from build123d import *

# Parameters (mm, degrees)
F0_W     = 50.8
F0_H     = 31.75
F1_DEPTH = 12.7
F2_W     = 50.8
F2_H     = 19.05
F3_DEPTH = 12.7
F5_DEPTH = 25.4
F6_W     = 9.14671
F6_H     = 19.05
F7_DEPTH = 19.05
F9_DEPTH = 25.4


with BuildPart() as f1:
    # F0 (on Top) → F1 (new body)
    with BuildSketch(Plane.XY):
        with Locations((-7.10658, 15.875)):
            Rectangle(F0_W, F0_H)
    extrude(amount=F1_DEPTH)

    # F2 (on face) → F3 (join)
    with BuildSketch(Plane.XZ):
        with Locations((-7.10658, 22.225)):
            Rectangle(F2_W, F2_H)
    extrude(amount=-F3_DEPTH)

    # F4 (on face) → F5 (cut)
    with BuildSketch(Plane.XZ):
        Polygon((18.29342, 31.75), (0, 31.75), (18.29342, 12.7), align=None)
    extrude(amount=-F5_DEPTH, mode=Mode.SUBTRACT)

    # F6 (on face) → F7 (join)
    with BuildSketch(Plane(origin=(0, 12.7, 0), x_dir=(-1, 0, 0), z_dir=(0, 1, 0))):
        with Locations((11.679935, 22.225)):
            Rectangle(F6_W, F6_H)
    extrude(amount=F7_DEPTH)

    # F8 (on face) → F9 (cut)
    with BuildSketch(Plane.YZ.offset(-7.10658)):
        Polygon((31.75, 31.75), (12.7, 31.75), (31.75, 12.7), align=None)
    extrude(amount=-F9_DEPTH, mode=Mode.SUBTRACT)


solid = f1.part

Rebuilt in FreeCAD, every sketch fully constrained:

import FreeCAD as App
import Part
import Sketcher

V = App.Vector
Q = App.Units.Quantity

doc = App.newDocument("Part")
body = doc.addObject("PartDesign::Body", "Body")

# Sketch on XY plane
sketch1 = doc.addObject("Sketcher::SketchObject", "Sketch")
body.addObject(sketch1)
sketch1.AttachmentSupport = (doc.XY_Plane, [""])
sketch1.MapMode = "FlatFace"
sketch1.addGeometry(Part.LineSegment(V(-33, 32, 0), V(-33, 0, 0)), False)
sketch1.addGeometry(Part.LineSegment(V(-33, 0, 0), V(18, 0, 0)), False)
sketch1.addGeometry(Part.LineSegment(V(18, 0, 0), V(18, 32, 0)), False)
sketch1.addGeometry(Part.LineSegment(V(18, 32, 0), V(-33, 32, 0)), False)
sketch1.addConstraint(Sketcher.Constraint("Coincident", 0, 2, 1, 1))
sketch1.addConstraint(Sketcher.Constraint("Coincident", 1, 2, 2, 1))
sketch1.addConstraint(Sketcher.Constraint("Coincident", 2, 2, 3, 1))
sketch1.addConstraint(Sketcher.Constraint("Coincident", 3, 2, 0, 1))
sketch1.addConstraint(Sketcher.Constraint("Vertical", 0))
sketch1.addConstraint(Sketcher.Constraint("Horizontal", 1))
sketch1.addConstraint(Sketcher.Constraint("Vertical", 2))
sketch1.addConstraint(Sketcher.Constraint("Horizontal", 3))
sketch1.addConstraint(Sketcher.Constraint("PointOnObject", 0, 2, -1))
sketch1.addConstraint(Sketcher.Constraint("DistanceX", 1, 1, 1, 2, Q("2 in")))
sketch1.addConstraint(Sketcher.Constraint("DistanceY", 0, 2, 0, 1, Q("1.25 in")))
sketch1.addConstraint(Sketcher.Constraint("DistanceX", 0, 2, -1, 1, Q("32.50658 mm")))
pad1 = doc.addObject("PartDesign::Pad", "Pad")
body.addObject(pad1)
pad1.Profile = sketch1
pad1.Length = Q("0.5 in")

# Sketch on XZ plane
sketch2 = doc.addObject("Sketcher::SketchObject", "Sketch001")
body.addObject(sketch2)
sketch2.AttachmentSupport = (doc.XZ_Plane, [""])
sketch2.MapMode = "FlatFace"
sketch2.addGeometry(Part.LineSegment(V(-33, 32, 0), V(-33, 13, 0)), False)
sketch2.addGeometry(Part.LineSegment(V(-33, 13, 0), V(18, 13, 0)), False)
sketch2.addGeometry(Part.LineSegment(V(18, 13, 0), V(18, 32, 0)), False)
sketch2.addGeometry(Part.LineSegment(V(18, 32, 0), V(-33, 32, 0)), False)
sketch2.addConstraint(Sketcher.Constraint("Coincident", 0, 2, 1, 1))
sketch2.addConstraint(Sketcher.Constraint("Coincident", 1, 2, 2, 1))
sketch2.addConstraint(Sketcher.Constraint("Coincident", 2, 2, 3, 1))
sketch2.addConstraint(Sketcher.Constraint("Coincident", 3, 2, 0, 1))
sketch2.addConstraint(Sketcher.Constraint("Vertical", 0))
sketch2.addConstraint(Sketcher.Constraint("Horizontal", 1))
sketch2.addConstraint(Sketcher.Constraint("Vertical", 2))
sketch2.addConstraint(Sketcher.Constraint("Horizontal", 3))
sketch2.addConstraint(Sketcher.Constraint("DistanceX", 1, 1, 1, 2, Q("2 in")))
sketch2.addConstraint(Sketcher.Constraint("DistanceY", 0, 2, 0, 1, Q("0.75 in")))
sketch2.addConstraint(Sketcher.Constraint("DistanceY", -1, 1, 0, 2, Q("0.5 in")))
sketch2.addConstraint(Sketcher.Constraint("DistanceX", 0, 2, -1, 1, Q("32.50658 mm")))
pad2 = doc.addObject("PartDesign::Pad", "Pad001")
body.addObject(pad2)
pad2.Profile = sketch2
pad2.Length = Q("0.5 in")
pad2.Reversed = True

# Sketch on XZ plane
sketch3 = doc.addObject("Sketcher::SketchObject", "Sketch002")
body.addObject(sketch3)
sketch3.AttachmentSupport = (doc.XZ_Plane, [""])
sketch3.MapMode = "FlatFace"
sketch3.addGeometry(Part.LineSegment(V(18, 32, 0), V(0, 32, 0)), False)
sketch3.addGeometry(Part.LineSegment(V(0, 32, 0), V(18, 13, 0)), False)
sketch3.addGeometry(Part.LineSegment(V(18, 13, 0), V(18, 32, 0)), False)
sketch3.addConstraint(Sketcher.Constraint("Coincident", 0, 2, 1, 1))
sketch3.addConstraint(Sketcher.Constraint("Coincident", 1, 2, 2, 1))
sketch3.addConstraint(Sketcher.Constraint("Coincident", 2, 2, 0, 1))
sketch3.addConstraint(Sketcher.Constraint("Horizontal", 0))
sketch3.addConstraint(Sketcher.Constraint("Vertical", 2))
sketch3.addConstraint(Sketcher.Constraint("PointOnObject", 0, 2, -2))
sketch3.addConstraint(Sketcher.Constraint("DistanceY", 2, 1, 2, 2, Q("0.75 in")))
sketch3.addConstraint(Sketcher.Constraint("DistanceY", -1, 1, 1, 2, Q("0.5 in")))
sketch3.addConstraint(Sketcher.Constraint("DistanceX", 0, 2, 0, 1, Q("18.29342 mm")))
pocket1 = doc.addObject("PartDesign::Pocket", "Pocket")
body.addObject(pocket1)
pocket1.Profile = sketch3
pocket1.Length = Q("1 in")

# Sketch on XZ plane
sketch4 = doc.addObject("Sketcher::SketchObject", "Sketch003")
body.addObject(sketch4)
sketch4.AttachmentSupport = (doc.XZ_Plane, [""])
sketch4.MapMode = "FlatFace"
sketch4.AttachmentOffset = App.Placement(V(0, 0, -0.5 * 25.4), App.Rotation())
sketch4.addGeometry(Part.LineSegment(V(-7, 32, 0), V(-7, 13, 0)), False)
sketch4.addGeometry(Part.LineSegment(V(-7, 13, 0), V(-16, 13, 0)), False)
sketch4.addGeometry(Part.LineSegment(V(-16, 13, 0), V(-16, 32, 0)), False)
sketch4.addGeometry(Part.LineSegment(V(-16, 32, 0), V(-7, 32, 0)), False)
sketch4.addConstraint(Sketcher.Constraint("Coincident", 0, 2, 1, 1))
sketch4.addConstraint(Sketcher.Constraint("Coincident", 1, 2, 2, 1))
sketch4.addConstraint(Sketcher.Constraint("Coincident", 2, 2, 3, 1))
sketch4.addConstraint(Sketcher.Constraint("Coincident", 3, 2, 0, 1))
sketch4.addConstraint(Sketcher.Constraint("Vertical", 0))
sketch4.addConstraint(Sketcher.Constraint("Horizontal", 1))
sketch4.addConstraint(Sketcher.Constraint("Vertical", 2))
sketch4.addConstraint(Sketcher.Constraint("Horizontal", 3))
sketch4.addConstraint(Sketcher.Constraint("DistanceY", 0, 2, 0, 1, Q("0.75 in")))
sketch4.addConstraint(Sketcher.Constraint("DistanceY", -1, 1, 0, 2, Q("0.5 in")))
sketch4.addConstraint(Sketcher.Constraint("DistanceX", 1, 2, 1, 1, Q("9.14671 mm")))
sketch4.addConstraint(Sketcher.Constraint("DistanceX", 0, 2, -1, 1, Q("7.10658 mm")))
pad3 = doc.addObject("PartDesign::Pad", "Pad002")
body.addObject(pad3)
pad3.Profile = sketch4
pad3.Length = Q("0.75 in")
pad3.Reversed = True

# Sketch on YZ plane
sketch5 = doc.addObject("Sketcher::SketchObject", "Sketch004")
body.addObject(sketch5)
sketch5.AttachmentSupport = (doc.YZ_Plane, [""])
sketch5.MapMode = "FlatFace"
sketch5.AttachmentOffset = App.Placement(V(0, 0, -7.10658), App.Rotation())
sketch5.addGeometry(Part.LineSegment(V(32, 32, 0), V(13, 32, 0)), False)
sketch5.addGeometry(Part.LineSegment(V(13, 32, 0), V(32, 13, 0)), False)
sketch5.addGeometry(Part.LineSegment(V(32, 13, 0), V(32, 32, 0)), False)
sketch5.addConstraint(Sketcher.Constraint("Coincident", 0, 2, 1, 1))
sketch5.addConstraint(Sketcher.Constraint("Coincident", 1, 2, 2, 1))
sketch5.addConstraint(Sketcher.Constraint("Coincident", 2, 2, 0, 1))
sketch5.addConstraint(Sketcher.Constraint("Horizontal", 0))
sketch5.addConstraint(Sketcher.Constraint("Vertical", 2))
sketch5.addConstraint(Sketcher.Constraint("Equal", 0, 2))
sketch5.addConstraint(Sketcher.Constraint("DistanceX", 0, 2, 0, 1, Q("0.75 in")))
sketch5.addConstraint(Sketcher.Constraint("DistanceX", -1, 1, 0, 2, Q("0.5 in")))
sketch5.addConstraint(Sketcher.Constraint("DistanceY", -1, 1, 1, 2, Q("0.5 in")))
pocket2 = doc.addObject("PartDesign::Pocket", "Pocket001")
body.addObject(pocket2)
pocket2.Profile = sketch5
pocket2.Length = Q("1 in")

doc.recompute()
